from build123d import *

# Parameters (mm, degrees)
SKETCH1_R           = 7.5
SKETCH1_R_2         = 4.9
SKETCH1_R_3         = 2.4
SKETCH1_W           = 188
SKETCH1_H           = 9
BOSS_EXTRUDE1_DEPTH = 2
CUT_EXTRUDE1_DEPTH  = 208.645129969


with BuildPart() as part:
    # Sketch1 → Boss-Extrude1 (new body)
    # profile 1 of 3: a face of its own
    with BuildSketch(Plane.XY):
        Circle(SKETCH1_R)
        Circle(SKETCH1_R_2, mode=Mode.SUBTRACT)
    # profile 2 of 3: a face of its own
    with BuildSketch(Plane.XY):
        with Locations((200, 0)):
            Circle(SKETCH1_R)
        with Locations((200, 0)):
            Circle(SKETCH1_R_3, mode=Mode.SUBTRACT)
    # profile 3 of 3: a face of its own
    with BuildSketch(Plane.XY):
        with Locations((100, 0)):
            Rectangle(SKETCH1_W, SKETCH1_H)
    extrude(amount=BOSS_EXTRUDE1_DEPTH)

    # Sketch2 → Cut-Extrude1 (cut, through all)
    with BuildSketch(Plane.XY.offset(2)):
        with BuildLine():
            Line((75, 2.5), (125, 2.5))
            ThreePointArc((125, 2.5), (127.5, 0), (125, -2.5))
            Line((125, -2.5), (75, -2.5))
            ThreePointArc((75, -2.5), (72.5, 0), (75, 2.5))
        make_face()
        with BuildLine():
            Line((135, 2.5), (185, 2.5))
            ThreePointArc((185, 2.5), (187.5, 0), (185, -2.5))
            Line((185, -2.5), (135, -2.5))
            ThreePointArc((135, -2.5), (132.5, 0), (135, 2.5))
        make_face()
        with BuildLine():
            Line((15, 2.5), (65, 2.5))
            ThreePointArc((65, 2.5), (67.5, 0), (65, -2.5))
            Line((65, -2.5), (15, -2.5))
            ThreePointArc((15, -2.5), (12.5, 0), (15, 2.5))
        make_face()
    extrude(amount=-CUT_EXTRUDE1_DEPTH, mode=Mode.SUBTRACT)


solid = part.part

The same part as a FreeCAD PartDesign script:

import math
import FreeCAD as App
import Part
import Sketcher
from FreeCAD import Vector
Q = App.Units.Quantity

doc = App.newDocument("Part")
body = doc.addObject("PartDesign::Body", "Body")

# Sketch on XY plane
sketch1 = body.newObject("Sketcher::SketchObject", "Sketch")
sketch1.AttachmentSupport = (doc.getObject("XY_Plane"), [""])
sketch1.MapMode = "FlatFace"
sketch1.addGeometry(Part.LineSegment(Vector(6, -4.5, 0), Vector(194, -4.5, 0)), False)
sketch1.addGeometry(Part.ArcOfCircle(Part.Circle(Vector(200, 0, 0), Vector(0, 0, 1), 7.5), math.radians(-143), math.radians(143)), False)
sketch1.addGeometry(Part.LineSegment(Vector(194, 4.5, 0), Vector(6, 4.5, 0)), False)
sketch1.addGeometry(Part.ArcOfCircle(Part.Circle(Vector(0, 0, 0), Vector(0, 0, 1), 7.5), math.radians(37), math.radians(323)), False)
sketch1.addGeometry(Part.Circle(Vector(0, 0, 0), Vector(0, 0, 1), 4.9), False)
sketch1.addGeometry(Part.Circle(Vector(200, 0, 0), Vector(0, 0, 1), 2.4), False)
sketch1.addConstraint(Sketcher.Constraint("Coincident", 0, 2, 1, 1))
sketch1.addConstraint(Sketcher.Constraint("Coincident", 1, 2, 2, 1))
sketch1.addConstraint(Sketcher.Constraint("Coincident", 2, 2, 3, 1))
sketch1.addConstraint(Sketcher.Constraint("Coincident", 3, 2, 0, 1))
sketch1.addConstraint(Sketcher.Constraint("Horizontal", 0))
sketch1.addConstraint(Sketcher.Constraint("Horizontal", 2))
sketch1.addConstraint(Sketcher.Constraint("Coincident", 3, 3, -1, 1))
sketch1.addConstraint(Sketcher.Constraint("Coincident", 4, 3, -1, 1))
sketch1.addConstraint(Sketcher.Constraint("Coincident", 5, 3, 1, 3))
sketch1.addConstraint(Sketcher.Constraint("Equal", 1, 3))
sketch1.addConstraint(Sketcher.Constraint("Symmetric", 0, 2, 1, 2, -1))
sketch1.addConstraint(Sketcher.Constraint("Diameter", 4, Q("9.8 mm")))
sketch1.addConstraint(Sketcher.Constraint("Diameter", 5, Q("4.8 mm")))
sketch1.addConstraint(Sketcher.Constraint("Radius", 1, Q("7.5 mm")))
sketch1.addConstraint(Sketcher.Constraint("DistanceX", 0, 1, 0, 2, Q("188 mm")))
sketch1.addConstraint(Sketcher.Constraint("DistanceX", -1, 1, 1, 3, Q("200 mm")))
pad1 = body.newObject("PartDesign::Pad", "Pad")
pad1.Profile = sketch1
pad1.Length = 2

# Sketch on XY plane
sketch2 = body.newObject("Sketcher::SketchObject", "Sketch001")
sketch2.AttachmentSupport = (doc.getObject("XY_Plane"), [""])
sketch2.MapMode = "FlatFace"
sketch2.AttachmentOffset = App.Placement(Vector(0, 0, 2), App.Rotation())
sketch2.addGeometry(Part.LineSegment(Vector(125, 2.5, 0), Vector(75, 2.5, 0)), False)
sketch2.addGeometry(Part.ArcOfCircle(Part.Circle(Vector(75, 0, 0), Vector(0, 0, 1), 2.5), math.radians(90), math.radians(270)), False)
sketch2.addGeometry(Part.LineSegment(Vector(75, -2.5, 0), Vector(125, -2.5, 0)), False)
sketch2.addGeometry(Part.ArcOfCircle(Part.Circle(Vector(125, 0, 0), Vector(0, 0, 1), 2.5), math.radians(-90), math.radians(90)), False)
sketch2.addGeometry(Part.LineSegment(Vector(185, 2.5, 0), Vector(135, 2.5, 0)), False)
sketch2.addGeometry(Part.ArcOfCircle(Part.Circle(Vector(135, 0, 0), Vector(0, 0, 1), 2.5), math.radians(90), math.radians(270)), False)
sketch2.addGeometry(Part.LineSegment(Vector(135, -2.5, 0), Vector(185, -2.5, 0)), False)
sketch2.addGeometry(Part.ArcOfCircle(Part.Circle(Vector(185, 0, 0), Vector(0, 0, 1), 2.5), math.radians(-90), math.radians(90)), False)
sketch2.addGeometry(Part.LineSegment(Vector(65, 2.5, 0), Vector(15, 2.5, 0)), False)
sketch2.addGeometry(Part.ArcOfCircle(Part.Circle(Vector(15, 0, 0), Vector(0, 0, 1), 2.5), math.radians(90), math.radians(270)), False)
sketch2.addGeometry(Part.LineSegment(Vector(15, -2.5, 0), Vector(65, -2.5, 0)), False)
sketch2.addGeometry(Part.ArcOfCircle(Part.Circle(Vector(65, 0, 0), Vector(0, 0, 1), 2.5), math.radians(-90), math.radians(90)), False)
sketch2.addConstraint(Sketcher.Constraint("Tangent", 0, 2, 1, 1))
sketch2.addConstraint(Sketcher.Constraint("Tangent", 1, 2, 2, 1))
sketch2.addConstraint(Sketcher.Constraint("Tangent", 2, 2, 3, 1))
sketch2.addConstraint(Sketcher.Constraint("Tangent", 3, 2, 0, 1))
sketch2.addConstraint(Sketcher.Constraint("Tangent", 4, 2, 5, 1))
sketch2.addConstraint(Sketcher.Constraint("Tangent", 5, 2, 6, 1))
sketch2.addConstraint(Sketcher.Constraint("Tangent", 6, 2, 7, 1))
sketch2.addConstraint(Sketcher.Constraint("Tangent", 7, 2, 4, 1))
sketch2.addConstraint(Sketcher.Constraint("Tangent", 8, 2, 9, 1))
sketch2.addConstraint(Sketcher.Constraint("Tangent", 9, 2, 10, 1))
sketch2.addConstraint(Sketcher.Constraint("Tangent", 10, 2, 11, 1))
sketch2.addConstraint(Sketcher.Constraint("Tangent", 11, 2, 8, 1))
sketch2.addConstraint(Sketcher.Constraint("Horizontal", 0))
sketch2.addConstraint(Sketcher.Constraint("Horizontal", 2))
sketch2.addConstraint(Sketcher.Constraint("Horizontal", 4))
sketch2.addConstraint(Sketcher.Constraint("Horizontal", 6))
sketch2.addConstraint(Sketcher.Constraint("Horizontal", 8))
sketch2.addConstraint(Sketcher.Constraint("Horizontal", 10))
sketch2.addConstraint(Sketcher.Constraint("Equal", 3, 5))
sketch2.addConstraint(Sketcher.Constraint("Equal", 7, 9))
sketch2.addConstraint(Sketcher.Constraint("PointOnObject", 1, 3, -1))
sketch2.addConstraint(Sketcher.Constraint("PointOnObject", 5, 3, -1))
sketch2.addConstraint(Sketcher.Constraint("PointOnObject", 9, 3, -1))
sketch2.addConstraint(Sketcher.Constraint("Equal", 2, 4))
sketch2.addConstraint(Sketcher.Constraint("Equal", 6, 8))
sketch2.addConstraint(Sketcher.Constraint("Radius", 1, Q("2.5 mm")))
sketch2.addConstraint(Sketcher.Constraint("DistanceX", 0, 2, 0, 1, Q("50 mm")))
sketch2.addConstraint(Sketcher.Constraint("DistanceX", -1, 1, 1, 3, Q("75 mm")))
sketch2.addConstraint(Sketcher.Constraint("DistanceX", -1, 1, 5, 3, Q("135 mm")))
sketch2.addConstraint(Sketcher.Constraint("DistanceX", -1, 1, 9, 3, Q("15 mm")))
pocket1 = body.newObject("PartDesign::Pocket", "Pocket")
pocket1.Profile = sketch2
pocket1.Type = "ThroughAll"

doc.recompute()
